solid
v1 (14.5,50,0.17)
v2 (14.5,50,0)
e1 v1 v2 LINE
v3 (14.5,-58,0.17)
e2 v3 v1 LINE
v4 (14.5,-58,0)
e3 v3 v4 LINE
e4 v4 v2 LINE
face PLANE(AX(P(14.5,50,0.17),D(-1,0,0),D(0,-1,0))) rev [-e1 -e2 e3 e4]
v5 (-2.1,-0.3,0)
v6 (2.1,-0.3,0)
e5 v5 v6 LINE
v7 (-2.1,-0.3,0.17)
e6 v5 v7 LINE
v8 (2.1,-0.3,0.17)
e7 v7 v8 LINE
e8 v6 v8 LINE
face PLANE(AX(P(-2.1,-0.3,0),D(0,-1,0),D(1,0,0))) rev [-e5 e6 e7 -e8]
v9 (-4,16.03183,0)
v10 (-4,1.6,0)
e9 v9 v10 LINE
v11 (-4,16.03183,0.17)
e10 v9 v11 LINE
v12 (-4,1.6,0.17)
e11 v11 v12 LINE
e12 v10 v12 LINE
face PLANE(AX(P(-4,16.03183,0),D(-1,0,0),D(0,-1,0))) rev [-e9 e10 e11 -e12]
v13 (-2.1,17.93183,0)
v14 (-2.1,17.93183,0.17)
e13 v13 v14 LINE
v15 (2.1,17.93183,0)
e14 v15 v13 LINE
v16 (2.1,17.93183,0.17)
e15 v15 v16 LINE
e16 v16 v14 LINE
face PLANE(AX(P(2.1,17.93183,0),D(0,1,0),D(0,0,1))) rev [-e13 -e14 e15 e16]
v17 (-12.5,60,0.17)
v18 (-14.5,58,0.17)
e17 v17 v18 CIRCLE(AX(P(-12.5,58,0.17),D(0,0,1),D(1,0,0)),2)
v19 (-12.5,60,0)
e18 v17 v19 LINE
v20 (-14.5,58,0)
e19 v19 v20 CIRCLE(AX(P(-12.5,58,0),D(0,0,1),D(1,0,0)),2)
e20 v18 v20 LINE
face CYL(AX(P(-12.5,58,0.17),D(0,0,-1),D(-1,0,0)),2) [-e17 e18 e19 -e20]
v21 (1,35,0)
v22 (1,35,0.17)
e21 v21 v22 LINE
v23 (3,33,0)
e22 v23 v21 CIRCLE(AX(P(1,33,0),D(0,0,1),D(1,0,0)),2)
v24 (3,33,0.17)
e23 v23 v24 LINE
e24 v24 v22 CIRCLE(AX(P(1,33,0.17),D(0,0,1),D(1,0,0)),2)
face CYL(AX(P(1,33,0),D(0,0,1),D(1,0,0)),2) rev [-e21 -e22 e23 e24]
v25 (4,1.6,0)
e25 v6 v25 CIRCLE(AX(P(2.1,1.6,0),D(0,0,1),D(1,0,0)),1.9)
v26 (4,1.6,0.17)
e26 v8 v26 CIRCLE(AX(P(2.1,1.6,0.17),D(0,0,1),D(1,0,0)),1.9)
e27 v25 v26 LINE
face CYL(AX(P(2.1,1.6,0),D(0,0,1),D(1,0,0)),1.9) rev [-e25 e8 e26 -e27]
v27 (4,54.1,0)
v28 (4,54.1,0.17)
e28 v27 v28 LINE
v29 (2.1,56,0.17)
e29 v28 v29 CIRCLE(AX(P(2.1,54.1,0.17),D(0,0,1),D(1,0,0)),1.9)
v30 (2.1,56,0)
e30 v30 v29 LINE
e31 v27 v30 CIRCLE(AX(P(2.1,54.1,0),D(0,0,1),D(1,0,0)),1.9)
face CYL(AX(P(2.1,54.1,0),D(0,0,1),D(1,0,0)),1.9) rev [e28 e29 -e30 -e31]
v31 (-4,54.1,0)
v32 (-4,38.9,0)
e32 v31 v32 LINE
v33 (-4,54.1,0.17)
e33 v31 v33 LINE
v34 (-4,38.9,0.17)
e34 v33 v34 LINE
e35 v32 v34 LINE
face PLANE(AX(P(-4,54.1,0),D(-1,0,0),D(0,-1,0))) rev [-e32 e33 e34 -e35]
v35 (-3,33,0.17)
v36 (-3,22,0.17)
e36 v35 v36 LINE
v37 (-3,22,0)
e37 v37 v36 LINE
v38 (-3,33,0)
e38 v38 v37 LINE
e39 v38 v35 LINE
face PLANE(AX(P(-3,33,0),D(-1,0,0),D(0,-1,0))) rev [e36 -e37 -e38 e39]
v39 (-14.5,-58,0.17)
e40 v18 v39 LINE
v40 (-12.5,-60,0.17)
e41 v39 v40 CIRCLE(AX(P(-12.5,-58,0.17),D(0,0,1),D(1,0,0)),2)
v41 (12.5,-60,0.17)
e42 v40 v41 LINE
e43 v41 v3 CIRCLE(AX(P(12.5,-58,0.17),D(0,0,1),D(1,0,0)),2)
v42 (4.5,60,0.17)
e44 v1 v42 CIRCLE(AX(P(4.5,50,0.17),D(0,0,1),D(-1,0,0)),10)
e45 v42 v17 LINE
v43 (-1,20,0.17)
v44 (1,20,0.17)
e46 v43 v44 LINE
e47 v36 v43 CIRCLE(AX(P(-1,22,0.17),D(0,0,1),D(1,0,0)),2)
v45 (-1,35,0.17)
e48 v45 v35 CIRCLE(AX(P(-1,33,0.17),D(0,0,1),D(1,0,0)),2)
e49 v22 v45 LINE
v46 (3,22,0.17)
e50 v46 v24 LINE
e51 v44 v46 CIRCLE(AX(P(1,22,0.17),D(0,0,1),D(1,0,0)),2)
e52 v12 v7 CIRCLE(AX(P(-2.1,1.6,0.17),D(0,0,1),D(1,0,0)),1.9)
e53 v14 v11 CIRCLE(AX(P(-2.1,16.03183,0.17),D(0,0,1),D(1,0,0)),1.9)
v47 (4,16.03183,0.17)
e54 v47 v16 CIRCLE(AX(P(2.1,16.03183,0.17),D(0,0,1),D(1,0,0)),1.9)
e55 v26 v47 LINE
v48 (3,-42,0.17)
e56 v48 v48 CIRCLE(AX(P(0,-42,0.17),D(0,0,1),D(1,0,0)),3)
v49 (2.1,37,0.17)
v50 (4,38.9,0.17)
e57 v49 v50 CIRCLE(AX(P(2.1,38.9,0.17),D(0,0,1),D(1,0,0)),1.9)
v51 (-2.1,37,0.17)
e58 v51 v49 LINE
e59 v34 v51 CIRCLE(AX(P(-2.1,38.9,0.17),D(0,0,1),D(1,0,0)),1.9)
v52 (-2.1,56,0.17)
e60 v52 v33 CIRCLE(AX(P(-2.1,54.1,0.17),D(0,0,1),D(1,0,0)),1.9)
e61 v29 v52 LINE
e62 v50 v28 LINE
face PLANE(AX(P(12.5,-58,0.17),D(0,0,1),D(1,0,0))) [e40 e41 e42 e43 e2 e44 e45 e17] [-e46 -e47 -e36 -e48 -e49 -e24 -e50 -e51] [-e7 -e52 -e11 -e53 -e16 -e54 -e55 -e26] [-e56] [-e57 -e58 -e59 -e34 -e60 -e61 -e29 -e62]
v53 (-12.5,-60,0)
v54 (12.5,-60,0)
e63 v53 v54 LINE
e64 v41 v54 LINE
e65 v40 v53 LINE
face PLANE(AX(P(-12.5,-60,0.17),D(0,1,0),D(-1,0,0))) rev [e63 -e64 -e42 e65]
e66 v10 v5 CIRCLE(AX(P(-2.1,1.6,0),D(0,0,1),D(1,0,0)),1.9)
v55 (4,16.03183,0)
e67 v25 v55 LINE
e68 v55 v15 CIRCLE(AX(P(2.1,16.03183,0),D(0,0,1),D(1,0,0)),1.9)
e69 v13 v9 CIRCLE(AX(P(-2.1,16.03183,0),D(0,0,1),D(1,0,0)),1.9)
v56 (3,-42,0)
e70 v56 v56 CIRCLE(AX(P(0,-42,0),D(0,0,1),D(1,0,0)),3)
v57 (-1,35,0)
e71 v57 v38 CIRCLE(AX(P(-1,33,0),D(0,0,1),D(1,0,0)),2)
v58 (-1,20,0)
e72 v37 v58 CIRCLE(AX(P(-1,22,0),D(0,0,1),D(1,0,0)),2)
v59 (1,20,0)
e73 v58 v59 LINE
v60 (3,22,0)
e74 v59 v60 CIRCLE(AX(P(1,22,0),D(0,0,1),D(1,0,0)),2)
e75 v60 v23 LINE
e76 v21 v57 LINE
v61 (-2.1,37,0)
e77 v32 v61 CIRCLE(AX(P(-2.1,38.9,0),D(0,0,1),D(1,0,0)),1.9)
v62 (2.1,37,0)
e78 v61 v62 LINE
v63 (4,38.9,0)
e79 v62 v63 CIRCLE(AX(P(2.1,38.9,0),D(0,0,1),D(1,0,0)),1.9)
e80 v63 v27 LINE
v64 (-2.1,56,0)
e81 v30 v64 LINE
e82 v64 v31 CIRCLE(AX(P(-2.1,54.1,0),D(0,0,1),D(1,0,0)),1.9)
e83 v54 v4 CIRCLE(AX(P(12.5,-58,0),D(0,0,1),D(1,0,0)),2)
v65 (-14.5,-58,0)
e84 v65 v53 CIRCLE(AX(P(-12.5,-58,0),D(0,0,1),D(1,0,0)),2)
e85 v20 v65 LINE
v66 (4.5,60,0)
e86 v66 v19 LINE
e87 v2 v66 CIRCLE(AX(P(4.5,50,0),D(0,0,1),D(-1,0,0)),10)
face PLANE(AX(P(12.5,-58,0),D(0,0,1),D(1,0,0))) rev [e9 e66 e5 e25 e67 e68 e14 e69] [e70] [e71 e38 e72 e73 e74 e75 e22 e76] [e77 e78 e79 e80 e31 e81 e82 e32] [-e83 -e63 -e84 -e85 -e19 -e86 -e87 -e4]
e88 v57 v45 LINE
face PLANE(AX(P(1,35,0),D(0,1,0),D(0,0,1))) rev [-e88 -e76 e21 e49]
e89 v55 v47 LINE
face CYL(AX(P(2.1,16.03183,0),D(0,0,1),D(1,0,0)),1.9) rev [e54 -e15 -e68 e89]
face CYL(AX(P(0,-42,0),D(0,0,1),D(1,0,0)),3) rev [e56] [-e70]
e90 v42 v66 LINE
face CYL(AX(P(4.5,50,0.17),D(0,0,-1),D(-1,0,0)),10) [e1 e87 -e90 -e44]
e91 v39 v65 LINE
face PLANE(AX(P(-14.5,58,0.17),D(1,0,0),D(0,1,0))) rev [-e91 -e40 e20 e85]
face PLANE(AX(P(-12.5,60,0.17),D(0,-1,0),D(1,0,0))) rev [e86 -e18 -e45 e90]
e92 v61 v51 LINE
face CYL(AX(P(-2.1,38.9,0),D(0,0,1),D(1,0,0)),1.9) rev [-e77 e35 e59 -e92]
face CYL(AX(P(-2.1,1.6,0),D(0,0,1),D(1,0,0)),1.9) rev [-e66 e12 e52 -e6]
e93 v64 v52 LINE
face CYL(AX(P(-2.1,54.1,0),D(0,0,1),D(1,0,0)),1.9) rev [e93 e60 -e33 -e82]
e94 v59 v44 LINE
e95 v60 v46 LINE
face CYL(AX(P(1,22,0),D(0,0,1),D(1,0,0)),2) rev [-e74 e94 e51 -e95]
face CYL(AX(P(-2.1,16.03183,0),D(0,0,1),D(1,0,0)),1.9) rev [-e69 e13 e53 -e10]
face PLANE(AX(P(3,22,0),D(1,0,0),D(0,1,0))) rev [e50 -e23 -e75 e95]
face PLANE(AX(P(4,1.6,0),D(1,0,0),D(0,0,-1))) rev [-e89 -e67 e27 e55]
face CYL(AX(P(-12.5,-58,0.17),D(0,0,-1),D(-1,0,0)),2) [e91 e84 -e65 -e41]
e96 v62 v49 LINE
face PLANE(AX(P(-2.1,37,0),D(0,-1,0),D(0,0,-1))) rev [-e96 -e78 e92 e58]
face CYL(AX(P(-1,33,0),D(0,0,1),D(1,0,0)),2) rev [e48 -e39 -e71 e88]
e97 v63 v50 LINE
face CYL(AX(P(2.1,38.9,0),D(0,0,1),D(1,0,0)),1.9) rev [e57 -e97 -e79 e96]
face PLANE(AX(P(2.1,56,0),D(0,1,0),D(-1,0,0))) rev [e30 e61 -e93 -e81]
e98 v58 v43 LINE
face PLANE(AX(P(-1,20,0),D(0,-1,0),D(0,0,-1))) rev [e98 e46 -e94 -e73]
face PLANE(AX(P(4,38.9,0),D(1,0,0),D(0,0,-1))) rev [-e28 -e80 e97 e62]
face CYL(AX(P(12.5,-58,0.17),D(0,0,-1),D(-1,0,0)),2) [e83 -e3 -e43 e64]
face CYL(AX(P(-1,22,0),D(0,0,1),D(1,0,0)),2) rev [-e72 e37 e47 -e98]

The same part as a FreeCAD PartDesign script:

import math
import FreeCAD as App
import Part
import Sketcher
Q = App.Units.Quantity

doc = App.newDocument("Part")
body = doc.addObject("PartDesign::Body", "Body")

# Sketch on XY plane
sketch1 = body.newObject("Sketcher::SketchObject", "Sketch")
sketch1.AttachmentSupport = (doc.getObject("XY_Plane"), [""])
sketch1.MapMode = "FlatFace"
sketch1.addGeometry(Part.LineSegment(App.Vector(4.5, 60, 0), App.Vector(-12.5, 60, 0)), False)
sketch1.addGeometry(Part.ArcOfCircle(Part.Circle(App.Vector(-12.5, 58, 0), App.Vector(0, 0, 1), 2), math.radians(90), math.radians(180)), False)
sketch1.addGeometry(Part.LineSegment(App.Vector(-14.5, 58, 0), App.Vector(-14.5, -58, 0)), False)
sketch1.addGeometry(Part.ArcOfCircle(Part.Circle(App.Vector(-12.5, -58, 0), App.Vector(0, 0, 1), 2), math.radians(-180), math.radians(-90)), False)
sketch1.addGeometry(Part.LineSegment(App.Vector(-12.5, -60, 0), App.Vector(12.5, -60, 0)), False)
sketch1.addGeometry(Part.ArcOfCircle(Part.Circle(App.Vector(12.5, -58, 0), App.Vector(0, 0, 1), 2), math.radians(-90), math.radians(0)), False)
sketch1.addGeometry(Part.LineSegment(App.Vector(14.5, -58, 0), App.Vector(14.5, 50, 0)), False)
sketch1.addGeometry(Part.ArcOfCircle(Part.Circle(App.Vector(4.5, 50, 0), App.Vector(0, 0, 1), 10), math.radians(0), math.radians(90)), False)
sketch1.addConstraint(Sketcher.Constraint("Tangent", 0, 2, 1, 1))
sketch1.addConstraint(Sketcher.Constraint("Tangent", 1, 2, 2, 1))
sketch1.addConstraint(Sketcher.Constraint("Tangent", 2, 2, 3, 1))
sketch1.addConstraint(Sketcher.Constraint("Tangent", 3, 2, 4, 1))
sketch1.addConstraint(Sketcher.Constraint("Tangent", 4, 2, 5, 1))
sketch1.addConstraint(Sketcher.Constraint("Tangent", 5, 2, 6, 1))
sketch1.addConstraint(Sketcher.Constraint("Tangent", 6, 2, 7, 1))
sketch1.addConstraint(Sketcher.Constraint("Tangent", 7, 2, 0, 1))
sketch1.addConstraint(Sketcher.Constraint("Horizontal", 0))
sketch1.addConstraint(Sketcher.Constraint("Vertical", 2))
sketch1.addConstraint(Sketcher.Constraint("Horizontal", 4))
sketch1.addConstraint(Sketcher.Constraint("Vertical", 6))
sketch1.addConstraint(Sketcher.Constraint("Equal", 1, 3))
sketch1.addConstraint(Sketcher.Constraint("Equal", 3, 5))
sketch1.addConstraint(Sketcher.Constraint("Symmetric", 1, 3, 5, 3, -1, 1))
sketch1.addConstraint(Sketcher.Constraint("Radius", 1, Q("2 mm")))
sketch1.addConstraint(Sketcher.Constraint("Radius", 7, Q("10 mm")))
sketch1.addConstraint(Sketcher.Constraint("DistanceX", 0, 2, 0, 1, Q("17 mm")))
sketch1.addConstraint(Sketcher.Constraint("DistanceY", 2, 2, 2, 1, Q("116 mm")))
pad1 = body.newObject("PartDesign::Pad", "Pad")
pad1.Profile = sketch1
pad1.Length = 0.17

# Sketch on XY plane
sketch2 = body.newObject("Sketcher::SketchObject", "Sketch001")
sketch2.AttachmentSupport = (doc.getObject("XY_Plane"), [""])
sketch2.MapMode = "FlatFace"
sketch2.addGeometry(Part.Circle(App.Vector(0, -42, 0), App.Vector(0, 0, 1), 3), False)
sketch2.addGeometry(Part.LineSegment(App.Vector(-2.1, -0.3, 0), App.Vector(2.1, -0.3, 0)), False)
sketch2.addGeometry(Part.ArcOfCircle(Part.Circle(App.Vector(2.1, 1.6, 0), App.Vector(0, 0, 1), 1.9), math.radians(-90), math.radians(0)), False)
sketch2.addGeometry(Part.LineSegment(App.Vector(4, 1.6, 0), App.Vector(4, 16.03183, 0)), False)
sketch2.addGeometry(Part.ArcOfCircle(Part.Circle(App.Vector(2.1, 16.03183, 0), App.Vector(0, 0, 1), 1.9), math.radians(0), math.radians(90)), False)
sketch2.addGeometry(Part.LineSegment(App.Vector(2.1, 17.93183, 0), App.Vector(-2.1, 17.93183, 0)), False)
sketch2.addGeometry(Part.ArcOfCircle(Part.Circle(App.Vector(-2.1, 16.03183, 0), App.Vector(0, 0, 1), 1.9), math.radians(90), math.radians(180)), False)
sketch2.addGeometry(Part.LineSegment(App.Vector(-4, 16.03183, 0), App.Vector(-4, 1.6, 0)), False)
sketch2.addGeometry(Part.ArcOfCircle(Part.Circle(App.Vector(-2.1, 1.6, 0), App.Vector(0, 0, 1), 1.9), math.radians(-180), math.radians(-90)), False)
sketch2.addGeometry(Part.LineSegment(App.Vector(2.1, 56, 0), App.Vector(-2.1, 56, 0)), False)
sketch2.addGeometry(Part.ArcOfCircle(Part.Circle(App.Vector(-2.1, 54.1, 0), App.Vector(0, 0, 1), 1.9), math.radians(90), math.radians(180)), False)
sketch2.addGeometry(Part.LineSegment(App.Vector(-4, 54.1, 0), App.Vector(-4, 38.9, 0)), False)
sketch2.addGeometry(Part.ArcOfCircle(Part.Circle(App.Vector(-2.1, 38.9, 0), App.Vector(0, 0, 1), 1.9), math.radians(-180), math.radians(-90)), False)
sketch2.addGeometry(Part.LineSegment(App.Vector(-2.1, 37, 0), App.Vector(2.1, 37, 0)), False)
sketch2.addGeometry(Part.ArcOfCircle(Part.Circle(App.Vector(2.1, 38.9, 0), App.Vector(0, 0, 1), 1.9), math.radians(-90), math.radians(0)), False)
sketch2.addGeometry(Part.LineSegment(App.Vector(4, 38.9, 0), App.Vector(4, 54.1, 0)), False)
sketch2.addGeometry(Part.ArcOfCircle(Part.Circle(App.Vector(2.1, 54.1, 0), App.Vector(0, 0, 1), 1.9), math.radians(0), math.radians(90)), False)
sketch2.addConstraint(Sketcher.Constraint("Tangent", 1, 2, 2, 1))
sketch2.addConstraint(Sketcher.Constraint("Tangent", 2, 2, 3, 1))
sketch2.addConstraint(Sketcher.Constraint("Tangent", 3, 2, 4, 1))
sketch2.addConstraint(Sketcher.Constraint("Tangent", 4, 2, 5, 1))
sketch2.addConstraint(Sketcher.Constraint("Tangent", 5, 2, 6, 1))
sketch2.addConstraint(Sketcher.Constraint("Tangent", 6, 2, 7, 1))
sketch2.addConstraint(Sketcher.Constraint("Tangent", 7, 2, 8, 1))
sketch2.addConstraint(Sketcher.Constraint("Tangent", 8, 2, 1, 1))
sketch2.addConstraint(Sketcher.Constraint("Tangent", 9, 2, 10, 1))
sketch2.addConstraint(Sketcher.Constraint("Tangent", 10, 2, 11, 1))
sketch2.addConstraint(Sketcher.Constraint("Tangent", 11, 2, 12, 1))
sketch2.addConstraint(Sketcher.Constraint("Tangent", 12, 2, 13, 1))
sketch2.addConstraint(Sketcher.Constraint("Tangent", 13, 2, 14, 1))
sketch2.addConstraint(Sketcher.Constraint("Tangent", 14, 2, 15, 1))
sketch2.addConstraint(Sketcher.Constraint("Tangent", 15, 2, 16, 1))
sketch2.addConstraint(Sketcher.Constraint("Tangent", 16, 2, 9, 1))
sketch2.addConstraint(Sketcher.Constraint("Horizontal", 1))
sketch2.addConstraint(Sketcher.Constraint("Vertical", 3))
sketch2.addConstraint(Sketcher.Constraint("Horizontal", 5))
sketch2.addConstraint(Sketcher.Constraint("Vertical", 7))
sketch2.addConstraint(Sketcher.Constraint("Horizontal", 9))
sketch2.addConstraint(Sketcher.Constraint("Vertical", 11))
sketch2.addConstraint(Sketcher.Constraint("Horizontal", 13))
sketch2.addConstraint(Sketcher.Constraint("Vertical", 15))
sketch2.addConstraint(Sketcher.Constraint("Equal", 2, 4))
sketch2.addConstraint(Sketcher.Constraint("Equal", 4, 6))
sketch2.addConstraint(Sketcher.Constraint("Equal", 6, 8))
sketch2.addConstraint(Sketcher.Constraint("Equal", 8, 10))
sketch2.addConstraint(Sketcher.Constraint("Equal", 10, 12))
sketch2.addConstraint(Sketcher.Constraint("Equal", 12, 14))
sketch2.addConstraint(Sketcher.Constraint("Equal", 14, 16))
sketch2.addConstraint(Sketcher.Constraint("PointOnObject", 0, 3, -2))
sketch2.addConstraint(Sketcher.Constraint("Vertical", 8, 3, 10, 3))
sketch2.addConstraint(Sketcher.Constraint("Vertical", 4, 3, 14, 3))
sketch2.addConstraint(Sketcher.Constraint("Diameter", 0, Q("6 mm")))
sketch2.addConstraint(Sketcher.Constraint("Radius", 2, Q("1.9 mm")))
sketch2.addConstraint(Sketcher.Constraint("DistanceX", 1, 1, 1, 2, Q("4.2 mm")))
sketch2.addConstraint(Sketcher.Constraint("DistanceY", 11, 2, 11, 1, Q("15.2 mm")))
sketch2.addConstraint(Sketcher.Constraint("DistanceY", 0, 3, -1, 1, Q("42 mm")))
sketch2.addConstraint(Sketcher.Constraint("DistanceX", -1, 1, 2, 2, Q("4 mm")))
sketch2.addConstraint(Sketcher.Constraint("DistanceY", -1, 1, 9, 2, Q("56 mm")))
sketch2.addConstraint(Sketcher.Constraint("DistanceY", -1, 1, 2, 3, Q("1.6 mm")))
sketch2.addConstraint(Sketcher.Constraint("DistanceY", 3, 1, 3, 2, Q("14.43183 mm")))
pocket1 = body.newObject("PartDesign::Pocket", "Pocket")
pocket1.Profile = sketch2
pocket1.Type = "ThroughAll"
pocket1.Reversed = True

# Sketch on XY plane
sketch3 = body.newObject("Sketcher::SketchObject", "Sketch002")
sketch3.AttachmentSupport = (doc.getObject("XY_Plane"), [""])
sketch3.MapMode = "FlatFace"
sketch3.AttachmentOffset = App.Placement(App.Vector(0, 0, 0.17), App.Rotation())
sketch3.addGeometry(Part.LineSegment(App.Vector(-3, 33, 0), App.Vector(-3, 22, 0)), False)
sketch3.addGeometry(Part.ArcOfCircle(Part.Circle(App.Vector(-1, 22, 0), App.Vector(0, 0, 1), 2), math.radians(-180), math.radians(-90)), False)
sketch3.addGeometry(Part.LineSegment(App.Vector(-1, 20, 0), App.Vector(1, 20, 0)), False)
sketch3.addGeometry(Part.ArcOfCircle(Part.Circle(App.Vector(1, 22, 0), App.Vector(0, 0, 1), 2), math.radians(-90), math.radians(0)), False)
sketch3.addGeometry(Part.LineSegment(App.Vector(3, 22, 0), App.Vector(3, 33, 0)), False)
sketch3.addGeometry(Part.ArcOfCircle(Part.Circle(App.Vector(1, 33, 0), App.Vector(0, 0, 1), 2), math.radians(0), math.radians(90)), False)
sketch3.addGeometry(Part.LineSegment(App.Vector(1, 35, 0), App.Vector(-1, 35, 0)), False)
sketch3.addGeometry(Part.ArcOfCircle(Part.Circle(App.Vector(-1, 33, 0), App.Vector(0, 0, 1), 2), math.radians(90), math.radians(180)), False)
sketch3.addConstraint(Sketcher.Constraint("Tangent", 0, 2, 1, 1))
sketch3.addConstraint(Sketcher.Constraint("Tangent", 1, 2, 2, 1))
sketch3.addConstraint(Sketcher.Constraint("Tangent", 2, 2, 3, 1))
sketch3.addConstraint(Sketcher.Constraint("Tangent", 3, 2, 4, 1))
sketch3.addConstraint(Sketcher.Constraint("Tangent", 4, 2, 5, 1))
sketch3.addConstraint(Sketcher.Constraint("Tangent", 5, 2, 6, 1))
sketch3.addConstraint(Sketcher.Constraint("Tangent", 6, 2, 7, 1))
sketch3.addConstraint(Sketcher.Constraint("Tangent", 7, 2, 0, 1))
sketch3.addConstraint(Sketcher.Constraint("Vertical", 0))
sketch3.addConstraint(Sketcher.Constraint("Horizontal", 2))
sketch3.addConstraint(Sketcher.Constraint("Vertical", 4))
sketch3.addConstraint(Sketcher.Constraint("Horizontal", 6))
sketch3.addConstraint(Sketcher.Constraint("Equal", 1, 3))
sketch3.addConstraint(Sketcher.Constraint("Equal", 3, 5))
sketch3.addConstraint(Sketcher.Constraint("Equal", 5, 7))
sketch3.addConstraint(Sketcher.Constraint("Radius", 1, Q("2 mm")))
sketch3.addConstraint(Sketcher.Constraint("DistanceX", 2, 1, 2, 2, Q("2 mm")))
sketch3.addConstraint(Sketcher.Constraint("DistanceY", 0, 2, 0, 1, Q("11 mm")))
sketch3.addConstraint(Sketcher.Constraint("DistanceX", 1, 3, -1, 1, Q("1 mm")))
sketch3.addConstraint(Sketcher.Constraint("DistanceY", -1, 1, 1, 3, Q("22 mm")))
pocket2 = body.newObject("PartDesign::Pocket", "Pocket001")
pocket2.Profile = sketch3
pocket2.Type = "ThroughAll"

doc.recompute()
